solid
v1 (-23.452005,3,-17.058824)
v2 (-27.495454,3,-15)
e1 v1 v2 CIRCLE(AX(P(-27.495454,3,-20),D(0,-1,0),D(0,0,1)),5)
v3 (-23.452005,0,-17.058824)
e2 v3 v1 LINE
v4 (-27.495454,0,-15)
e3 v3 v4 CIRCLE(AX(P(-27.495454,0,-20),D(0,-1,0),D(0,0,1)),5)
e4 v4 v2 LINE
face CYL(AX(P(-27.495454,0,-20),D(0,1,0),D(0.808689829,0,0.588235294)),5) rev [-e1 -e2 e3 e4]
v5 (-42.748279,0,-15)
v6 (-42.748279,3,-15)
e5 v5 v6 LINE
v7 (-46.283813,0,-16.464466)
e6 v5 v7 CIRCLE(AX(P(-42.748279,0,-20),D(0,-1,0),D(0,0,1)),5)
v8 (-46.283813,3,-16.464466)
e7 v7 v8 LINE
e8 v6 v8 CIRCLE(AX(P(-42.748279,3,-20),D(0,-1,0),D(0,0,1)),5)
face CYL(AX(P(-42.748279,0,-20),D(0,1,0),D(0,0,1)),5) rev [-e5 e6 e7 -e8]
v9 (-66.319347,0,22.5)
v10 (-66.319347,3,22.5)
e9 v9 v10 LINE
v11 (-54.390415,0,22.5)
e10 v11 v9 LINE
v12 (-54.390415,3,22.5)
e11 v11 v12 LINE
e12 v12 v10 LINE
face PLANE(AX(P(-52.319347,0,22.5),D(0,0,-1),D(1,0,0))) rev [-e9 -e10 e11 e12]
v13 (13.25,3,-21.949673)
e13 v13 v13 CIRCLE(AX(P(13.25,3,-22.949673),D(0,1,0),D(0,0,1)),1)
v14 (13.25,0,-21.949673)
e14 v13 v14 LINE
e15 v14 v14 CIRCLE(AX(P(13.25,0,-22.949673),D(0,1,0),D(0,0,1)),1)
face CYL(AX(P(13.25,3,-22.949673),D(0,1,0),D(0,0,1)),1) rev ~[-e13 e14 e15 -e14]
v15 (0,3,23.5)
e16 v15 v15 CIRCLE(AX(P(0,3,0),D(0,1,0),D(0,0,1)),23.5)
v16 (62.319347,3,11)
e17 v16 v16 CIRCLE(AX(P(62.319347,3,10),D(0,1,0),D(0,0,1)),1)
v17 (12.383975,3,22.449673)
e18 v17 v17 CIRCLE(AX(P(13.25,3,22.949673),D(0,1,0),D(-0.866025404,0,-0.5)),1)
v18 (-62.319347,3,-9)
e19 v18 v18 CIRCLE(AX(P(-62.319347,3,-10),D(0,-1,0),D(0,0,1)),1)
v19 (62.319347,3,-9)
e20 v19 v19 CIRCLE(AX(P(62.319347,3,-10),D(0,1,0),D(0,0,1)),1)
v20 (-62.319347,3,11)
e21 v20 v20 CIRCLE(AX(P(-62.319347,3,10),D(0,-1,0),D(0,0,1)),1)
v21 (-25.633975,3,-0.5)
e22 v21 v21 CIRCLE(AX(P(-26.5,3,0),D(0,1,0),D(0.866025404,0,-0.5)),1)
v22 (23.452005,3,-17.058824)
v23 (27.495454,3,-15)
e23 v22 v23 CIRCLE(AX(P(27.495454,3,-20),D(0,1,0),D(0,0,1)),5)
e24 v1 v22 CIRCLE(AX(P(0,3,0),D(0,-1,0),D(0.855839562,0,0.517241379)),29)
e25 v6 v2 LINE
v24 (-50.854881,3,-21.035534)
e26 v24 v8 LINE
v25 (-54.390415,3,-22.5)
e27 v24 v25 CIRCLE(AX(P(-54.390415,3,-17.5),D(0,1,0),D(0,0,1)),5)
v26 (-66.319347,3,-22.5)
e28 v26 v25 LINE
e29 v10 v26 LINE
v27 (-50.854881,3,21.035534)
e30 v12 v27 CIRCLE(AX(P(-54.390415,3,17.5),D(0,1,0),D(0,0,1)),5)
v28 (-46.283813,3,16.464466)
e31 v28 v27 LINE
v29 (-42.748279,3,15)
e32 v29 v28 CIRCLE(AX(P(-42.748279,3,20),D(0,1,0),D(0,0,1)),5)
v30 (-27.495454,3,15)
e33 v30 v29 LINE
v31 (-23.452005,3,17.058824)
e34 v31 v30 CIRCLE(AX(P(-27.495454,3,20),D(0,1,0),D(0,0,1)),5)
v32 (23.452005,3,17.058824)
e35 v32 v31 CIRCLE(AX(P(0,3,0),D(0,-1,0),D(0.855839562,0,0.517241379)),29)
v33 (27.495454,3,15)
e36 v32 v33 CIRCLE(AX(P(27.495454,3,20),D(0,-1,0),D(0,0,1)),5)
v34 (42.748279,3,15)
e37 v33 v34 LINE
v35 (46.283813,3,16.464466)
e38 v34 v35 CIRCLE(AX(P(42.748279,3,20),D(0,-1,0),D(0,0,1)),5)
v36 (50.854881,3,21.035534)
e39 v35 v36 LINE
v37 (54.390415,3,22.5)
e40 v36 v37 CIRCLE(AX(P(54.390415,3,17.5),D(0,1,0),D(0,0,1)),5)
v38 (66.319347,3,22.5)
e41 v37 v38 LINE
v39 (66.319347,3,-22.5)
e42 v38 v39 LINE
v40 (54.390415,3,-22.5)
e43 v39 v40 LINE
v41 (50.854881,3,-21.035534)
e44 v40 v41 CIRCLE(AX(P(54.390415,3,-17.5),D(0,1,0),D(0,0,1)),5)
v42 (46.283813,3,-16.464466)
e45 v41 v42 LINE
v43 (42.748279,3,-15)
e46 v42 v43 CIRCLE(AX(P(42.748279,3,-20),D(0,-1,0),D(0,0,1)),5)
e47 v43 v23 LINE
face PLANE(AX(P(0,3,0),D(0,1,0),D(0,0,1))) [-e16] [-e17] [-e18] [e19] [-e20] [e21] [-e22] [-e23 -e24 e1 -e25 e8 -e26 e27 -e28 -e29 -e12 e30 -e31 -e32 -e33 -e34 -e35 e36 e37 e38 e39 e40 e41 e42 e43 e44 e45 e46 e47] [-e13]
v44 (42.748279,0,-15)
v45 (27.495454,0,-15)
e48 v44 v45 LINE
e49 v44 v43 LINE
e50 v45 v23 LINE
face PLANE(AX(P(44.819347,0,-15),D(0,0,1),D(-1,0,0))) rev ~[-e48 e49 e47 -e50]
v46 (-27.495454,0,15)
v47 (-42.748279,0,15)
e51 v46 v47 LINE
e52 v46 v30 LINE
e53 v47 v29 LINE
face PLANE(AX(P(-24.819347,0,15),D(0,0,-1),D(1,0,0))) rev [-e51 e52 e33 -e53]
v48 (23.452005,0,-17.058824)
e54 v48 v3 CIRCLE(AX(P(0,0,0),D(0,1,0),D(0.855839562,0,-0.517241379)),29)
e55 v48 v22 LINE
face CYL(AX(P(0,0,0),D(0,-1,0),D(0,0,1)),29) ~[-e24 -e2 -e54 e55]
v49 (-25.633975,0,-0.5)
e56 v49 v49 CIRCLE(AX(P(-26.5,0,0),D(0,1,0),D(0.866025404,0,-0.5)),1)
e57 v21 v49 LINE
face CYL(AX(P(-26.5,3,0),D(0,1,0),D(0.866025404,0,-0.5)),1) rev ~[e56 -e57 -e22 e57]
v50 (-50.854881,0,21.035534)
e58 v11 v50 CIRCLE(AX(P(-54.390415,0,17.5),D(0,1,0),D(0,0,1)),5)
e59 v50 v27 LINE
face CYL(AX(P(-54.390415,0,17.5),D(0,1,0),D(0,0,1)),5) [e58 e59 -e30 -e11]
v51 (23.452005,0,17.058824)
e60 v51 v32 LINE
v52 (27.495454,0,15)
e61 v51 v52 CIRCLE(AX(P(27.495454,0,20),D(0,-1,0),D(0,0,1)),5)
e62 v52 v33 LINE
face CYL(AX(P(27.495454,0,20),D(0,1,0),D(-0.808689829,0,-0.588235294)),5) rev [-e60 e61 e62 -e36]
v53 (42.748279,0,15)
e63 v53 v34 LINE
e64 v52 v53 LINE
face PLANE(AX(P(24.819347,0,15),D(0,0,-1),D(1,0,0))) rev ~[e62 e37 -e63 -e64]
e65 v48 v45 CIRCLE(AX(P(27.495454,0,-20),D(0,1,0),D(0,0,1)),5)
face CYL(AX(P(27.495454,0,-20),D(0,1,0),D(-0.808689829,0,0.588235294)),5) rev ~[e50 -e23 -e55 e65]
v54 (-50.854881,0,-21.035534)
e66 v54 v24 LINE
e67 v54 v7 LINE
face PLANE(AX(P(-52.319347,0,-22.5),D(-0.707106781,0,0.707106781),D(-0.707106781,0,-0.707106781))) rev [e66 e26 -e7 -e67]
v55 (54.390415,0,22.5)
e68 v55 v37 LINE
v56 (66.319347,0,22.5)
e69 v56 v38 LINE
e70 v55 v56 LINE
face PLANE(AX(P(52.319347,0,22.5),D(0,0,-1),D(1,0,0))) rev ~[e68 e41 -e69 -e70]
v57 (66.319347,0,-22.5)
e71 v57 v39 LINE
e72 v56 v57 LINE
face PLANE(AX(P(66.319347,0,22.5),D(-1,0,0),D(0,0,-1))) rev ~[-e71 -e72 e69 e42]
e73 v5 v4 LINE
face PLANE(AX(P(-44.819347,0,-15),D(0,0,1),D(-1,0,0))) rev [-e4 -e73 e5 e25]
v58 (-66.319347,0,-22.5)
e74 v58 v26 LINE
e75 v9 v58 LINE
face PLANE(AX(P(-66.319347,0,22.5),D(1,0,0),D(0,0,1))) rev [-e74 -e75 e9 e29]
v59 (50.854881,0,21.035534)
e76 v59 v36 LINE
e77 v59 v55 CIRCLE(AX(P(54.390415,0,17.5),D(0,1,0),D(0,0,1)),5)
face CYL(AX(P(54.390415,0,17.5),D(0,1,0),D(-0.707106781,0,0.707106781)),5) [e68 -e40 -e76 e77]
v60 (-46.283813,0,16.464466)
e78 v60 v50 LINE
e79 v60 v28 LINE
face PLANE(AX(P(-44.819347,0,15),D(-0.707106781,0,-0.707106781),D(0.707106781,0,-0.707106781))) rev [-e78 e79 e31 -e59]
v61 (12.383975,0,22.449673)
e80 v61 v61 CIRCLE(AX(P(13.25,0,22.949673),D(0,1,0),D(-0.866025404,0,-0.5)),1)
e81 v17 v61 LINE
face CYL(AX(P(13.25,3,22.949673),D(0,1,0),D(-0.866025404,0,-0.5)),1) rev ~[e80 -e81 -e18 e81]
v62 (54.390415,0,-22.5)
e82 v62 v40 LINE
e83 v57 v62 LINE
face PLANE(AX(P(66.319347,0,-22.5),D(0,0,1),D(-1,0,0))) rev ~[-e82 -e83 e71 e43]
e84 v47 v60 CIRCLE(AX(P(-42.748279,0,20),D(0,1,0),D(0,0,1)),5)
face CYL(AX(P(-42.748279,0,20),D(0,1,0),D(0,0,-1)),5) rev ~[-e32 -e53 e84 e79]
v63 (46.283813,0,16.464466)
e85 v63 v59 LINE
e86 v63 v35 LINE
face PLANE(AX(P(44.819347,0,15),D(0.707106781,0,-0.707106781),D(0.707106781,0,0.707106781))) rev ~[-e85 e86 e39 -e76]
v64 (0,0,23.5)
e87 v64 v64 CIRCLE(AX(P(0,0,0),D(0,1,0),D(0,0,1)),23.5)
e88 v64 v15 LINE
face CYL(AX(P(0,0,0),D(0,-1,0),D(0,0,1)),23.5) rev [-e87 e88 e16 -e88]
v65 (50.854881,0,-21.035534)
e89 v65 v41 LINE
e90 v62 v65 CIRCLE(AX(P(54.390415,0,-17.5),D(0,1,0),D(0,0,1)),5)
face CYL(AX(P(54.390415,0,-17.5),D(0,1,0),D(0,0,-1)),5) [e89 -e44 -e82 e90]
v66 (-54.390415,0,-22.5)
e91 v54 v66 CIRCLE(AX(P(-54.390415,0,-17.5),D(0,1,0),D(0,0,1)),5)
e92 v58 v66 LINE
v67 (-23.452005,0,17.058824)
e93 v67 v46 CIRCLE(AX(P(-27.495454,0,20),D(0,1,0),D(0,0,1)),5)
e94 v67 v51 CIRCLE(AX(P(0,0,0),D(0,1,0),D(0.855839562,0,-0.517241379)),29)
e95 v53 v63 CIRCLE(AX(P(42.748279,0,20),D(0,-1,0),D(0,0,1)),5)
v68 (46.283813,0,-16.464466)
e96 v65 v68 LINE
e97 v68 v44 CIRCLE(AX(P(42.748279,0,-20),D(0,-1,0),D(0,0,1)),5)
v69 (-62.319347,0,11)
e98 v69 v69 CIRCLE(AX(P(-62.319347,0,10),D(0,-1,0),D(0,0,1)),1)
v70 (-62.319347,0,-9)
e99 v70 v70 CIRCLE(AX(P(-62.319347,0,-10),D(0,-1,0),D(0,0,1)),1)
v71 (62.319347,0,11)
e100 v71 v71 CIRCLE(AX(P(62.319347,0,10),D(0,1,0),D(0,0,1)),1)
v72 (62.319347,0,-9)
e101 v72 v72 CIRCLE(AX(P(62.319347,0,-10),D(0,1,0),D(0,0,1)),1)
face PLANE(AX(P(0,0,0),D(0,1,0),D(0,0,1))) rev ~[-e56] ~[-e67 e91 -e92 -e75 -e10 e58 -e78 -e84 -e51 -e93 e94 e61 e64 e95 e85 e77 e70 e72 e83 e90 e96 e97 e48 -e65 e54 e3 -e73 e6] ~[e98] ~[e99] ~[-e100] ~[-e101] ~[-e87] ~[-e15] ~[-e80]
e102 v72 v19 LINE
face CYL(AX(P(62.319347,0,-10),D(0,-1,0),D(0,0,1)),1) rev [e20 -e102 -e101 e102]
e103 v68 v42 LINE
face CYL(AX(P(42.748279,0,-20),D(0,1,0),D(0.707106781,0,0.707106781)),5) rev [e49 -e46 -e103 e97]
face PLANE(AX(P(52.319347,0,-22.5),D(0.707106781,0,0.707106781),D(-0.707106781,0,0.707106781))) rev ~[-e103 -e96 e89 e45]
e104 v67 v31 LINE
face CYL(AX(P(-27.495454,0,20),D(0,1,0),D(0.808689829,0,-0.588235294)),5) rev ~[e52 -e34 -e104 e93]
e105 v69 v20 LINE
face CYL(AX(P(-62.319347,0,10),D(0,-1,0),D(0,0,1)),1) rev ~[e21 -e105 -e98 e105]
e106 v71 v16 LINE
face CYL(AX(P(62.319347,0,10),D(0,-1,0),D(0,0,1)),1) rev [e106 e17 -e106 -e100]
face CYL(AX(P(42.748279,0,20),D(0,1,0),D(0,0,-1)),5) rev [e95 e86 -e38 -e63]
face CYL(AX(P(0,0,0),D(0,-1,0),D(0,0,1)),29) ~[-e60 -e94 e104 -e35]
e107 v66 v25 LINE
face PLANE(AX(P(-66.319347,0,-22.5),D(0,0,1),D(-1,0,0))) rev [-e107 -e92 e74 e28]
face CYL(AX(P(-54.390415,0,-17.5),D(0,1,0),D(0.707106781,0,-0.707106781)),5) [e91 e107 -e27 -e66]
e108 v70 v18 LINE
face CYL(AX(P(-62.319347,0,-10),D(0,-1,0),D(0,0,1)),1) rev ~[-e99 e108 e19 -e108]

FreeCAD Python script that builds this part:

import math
import FreeCAD as App
import Part
import Sketcher

V = App.Vector


def edges_at(feature, points):
    """Names of the edges that pass closest to the given points."""
    edges = feature.Shape.Edges
    near = lambda p: min(range(len(edges)), key=lambda i: edges[i].distToShape(Part.Vertex(*p))[0])
    return sorted({f"Edge{near(p) + 1}" for p in points})

doc = App.newDocument("Part")
params = doc.addObject("Spreadsheet::Sheet", "Params")
for row, (alias, value) in enumerate([
    ("sketch1_diameter", "58 mm"),
    ("sketch1_diameter2", "47 mm"),
    ("pad1_length", "3 mm"),
    ("sketch2_diameter", "2 mm"),
    ("sketch2_radius", "29 mm"),
    ("sketch2_width", "20 mm"),
    ("sketch2_width2", "14 mm"),
    ("sketch2_height", "45 mm"),
    ("pad2_length", "3 mm"),
    ("fillet_radius", "5 mm"),
    ("sketch3_diameter", "2 mm"),
    ("pocket1_length", "3 mm"),
    ("fillet2_radius", "5 mm"),
], start=1):
    params.set(f"A{row}", alias)
    params.set(f"B{row}", "=" + value)
    params.setAlias(f"B{row}", alias)

body = doc.addObject("PartDesign::Body", "Body")

# Sketch on XZ plane
sketch1 = body.newObject("Sketcher::SketchObject", "Sketch")
sketch1.AttachmentSupport = (doc.getObject("XZ_Plane"), [""])
sketch1.MapMode = "FlatFace"
sketch1.addGeometry([
    Part.Circle(V(0, 0, 0), V(0, 0, 1), 29),
    Part.Circle(V(0, 0, 0), V(0, 0, 1), 24),
], False)
sketch1.addConstraint([
    Sketcher.Constraint("Coincident", 0, 3, -1, 1),
    Sketcher.Constraint("Coincident", 1, 3, -1, 1),
    Sketcher.Constraint("Diameter", 0, 58.0),
    Sketcher.Constraint("Diameter", 1, 47.0),
])
sketch1.setExpression("Constraints[2]", "Params.sketch1_diameter")
sketch1.setExpression("Constraints[3]", "Params.sketch1_diameter2")
pad1 = body.newObject("PartDesign::Pad", "Pad")
pad1.Profile = sketch1
pad1.setExpression("Length", "Params.pad1_length")
pad1.Reversed = True

# Sketch on XZ plane
sketch2 = body.newObject("Sketcher::SketchObject", "Sketch001")
sketch2.AttachmentSupport = (doc.getObject("XZ_Plane"), [""])
sketch2.MapMode = "FlatFace"
sketch2.addGeometry([
    Part.LineSegment(V(44.8, -15, 0), V(24.8, -15, 0)),  # 0
    Part.ArcOfCircle(Part.Circle(V(0, 0, 0), V(0, 0, 1), 29), math.radians(-31), math.radians(0)),  # 1
    Part.ArcOfCircle(Part.Circle(V(0, 0, 0), V(0, 0, 1), 29), math.radians(0), math.radians(31)),  # 2
    Part.LineSegment(V(24.8, 15, 0), V(44.8, 15, 0)),  # 3
    Part.LineSegment(V(44.8, 15, 0), V(52.3, 22.5, 0)),  # 4
    Part.LineSegment(V(52.3, 22.5, 0), V(66.3, 22.5, 0)),  # 5
    Part.LineSegment(V(66.3, 22.5, 0), V(66.3, -22.5, 0)),  # 6
    Part.LineSegment(V(66.3, -22.5, 0), V(52.3, -22.5, 0)),  # 7
    Part.LineSegment(V(52.3, -22.5, 0), V(44.8, -15, 0)),  # 8
    Part.Circle(V(62.3, 10, 0), V(0, 0, 1), 1),  # 9
    Part.Circle(V(62.3, -10, 0), V(0, 0, 1), 1),  # 10
], False)
sketch2.addConstraint([
    Sketcher.Constraint("Coincident", 0, 2, 1, 1),
    Sketcher.Constraint("Tangent", 1, 2, 2, 1),
    Sketcher.Constraint("Coincident", 2, 2, 3, 1),
    Sketcher.Constraint("Coincident", 3, 2, 4, 1),
    Sketcher.Constraint("Coincident", 4, 2, 5, 1),
    Sketcher.Constraint("Coincident", 5, 2, 6, 1),
    Sketcher.Constraint("Coincident", 6, 2, 7, 1),
    Sketcher.Constraint("Coincident", 7, 2, 8, 1),
    Sketcher.Constraint("Coincident", 8, 2, 0, 1),
    Sketcher.Constraint("Horizontal", 0),
    Sketcher.Constraint("Horizontal", 3),
    Sketcher.Constraint("Horizontal", 5),
    Sketcher.Constraint("Vertical", 6),
    Sketcher.Constraint("Horizontal", 7),
    Sketcher.Constraint("Coincident", 1, 3, -1, 1),
    Sketcher.Constraint("Equal", 1, 2),
    Sketcher.Constraint("Equal", 9, 10),
    Sketcher.Constraint("Symmetric", 9, 3, 10, 3, -1),
    Sketcher.Constraint("Symmetric", 4, 2, 7, 2, -1),
    Sketcher.Constraint("Symmetric", 3, 2, 8, 2, -1),
    Sketcher.Constraint("PointOnObject", 1, 2, -1),
    Sketcher.Constraint("Perpendicular", 4, 8),
    Sketcher.Constraint("Diameter", 9, 2.0),
    Sketcher.Constraint("Radius", 1, 29.0),
    Sketcher.Constraint("DistanceX", 0, 2, 0, 1, 20.0),
    Sketcher.Constraint("DistanceX", 5, 1, 5, 2, 14.0),
    Sketcher.Constraint("DistanceY", 6, 2, 6, 1, 45.0),
    Sketcher.Constraint("DistanceY", -1, 1, 9, 3, 10.0),
    Sketcher.Constraint("DistanceY", 0, 2, -1, 1, 15.0),
    Sketcher.Constraint("DistanceX", 4, 2, 9, 3, 10.0),
])
sketch2.setExpression("Constraints[22]", "Params.sketch2_diameter")
sketch2.setExpression("Constraints[23]", "Params.sketch2_radius")
sketch2.setExpression("Constraints[24]", "Params.sketch2_width")
sketch2.setExpression("Constraints[25]", "Params.sketch2_width2")
sketch2.setExpression("Constraints[26]", "Params.sketch2_height")
pad2 = body.newObject("PartDesign::Pad", "Pad001")
pad2.Profile = sketch2
pad2.setExpression("Length", "Params.pad2_length")
pad2.Reversed = True
doc.recompute()

fillet = body.newObject("PartDesign::Fillet", "Fillet")
fillet.Base = (pad2, edges_at(pad2, [
    (44.819, 1.5, -15),
    (52.319, 1.5, -22.5),
    (52.319, 1.5, 22.5),
    (44.819, 1.5, 15),
    (24.819, 1.5, 15),
    (24.819, 1.5, -15),
]))
fillet.setExpression("Radius", "Params.fillet_radius")

# Sketch on XZ plane
sketch3 = body.newObject("Sketcher::SketchObject", "Sketch002")
sketch3.AttachmentSupport = (doc.getObject("XZ_Plane"), [""])
sketch3.MapMode = "FlatFace"
sketch3.AttachmentOffset = App.Placement(V(0, 0, -3), App.Rotation())
sketch3.addGeometry(Part.Circle(V(13.2, -22.9, 0), V(0, 0, 1), 1), False)
sketch3.addConstraint([
    Sketcher.Constraint("Diameter", 0, 2.0),
    Sketcher.Constraint("DistanceX", -1, 1, 0, 3, 13.25),
    Sketcher.Constraint("DistanceY", 0, 3, -1, 1, 22.949673),
])
sketch3.setExpression("Constraints[0]", "Params.sketch3_diameter")
pocket1 = body.newObject("PartDesign::Pocket", "Pocket")
pocket1.Profile = sketch3
pocket1.setExpression("Length", "Params.pocket1_length")
pocket1.Reversed = True
doc.recompute()

polarpattern = body.newObject("PartDesign::PolarPattern", "PolarPattern")
polarpattern.Originals = [pocket1]
polarpattern.Axis = (doc.getObject("Y_Axis"), [""])
polarpattern.Angle = 360
polarpattern.Occurrences = 3
body.Tip = polarpattern
doc.recompute()

mirrored = body.newObject("PartDesign::Mirrored", "Mirrored")
mirrored.Originals = [pad2]
mirrored.MirrorPlane = (doc.getObject("YZ_Plane"), [""])
body.Tip = mirrored
doc.recompute()

fillet2 = body.newObject("PartDesign::Fillet", "Fillet001")
fillet2.Base = (mirrored, edges_at(mirrored, [
    (-44.819, 1.5, -15),
    (-52.319, 1.5, -22.5),
    (-52.319, 1.5, 22.5),
    (-44.819, 1.5, 15),
    (-24.819, 1.5, 15),
    (-24.819, 1.5, -15),
]))
fillet2.setExpression("Radius", "Params.fillet2_radius")

doc.recompute()
